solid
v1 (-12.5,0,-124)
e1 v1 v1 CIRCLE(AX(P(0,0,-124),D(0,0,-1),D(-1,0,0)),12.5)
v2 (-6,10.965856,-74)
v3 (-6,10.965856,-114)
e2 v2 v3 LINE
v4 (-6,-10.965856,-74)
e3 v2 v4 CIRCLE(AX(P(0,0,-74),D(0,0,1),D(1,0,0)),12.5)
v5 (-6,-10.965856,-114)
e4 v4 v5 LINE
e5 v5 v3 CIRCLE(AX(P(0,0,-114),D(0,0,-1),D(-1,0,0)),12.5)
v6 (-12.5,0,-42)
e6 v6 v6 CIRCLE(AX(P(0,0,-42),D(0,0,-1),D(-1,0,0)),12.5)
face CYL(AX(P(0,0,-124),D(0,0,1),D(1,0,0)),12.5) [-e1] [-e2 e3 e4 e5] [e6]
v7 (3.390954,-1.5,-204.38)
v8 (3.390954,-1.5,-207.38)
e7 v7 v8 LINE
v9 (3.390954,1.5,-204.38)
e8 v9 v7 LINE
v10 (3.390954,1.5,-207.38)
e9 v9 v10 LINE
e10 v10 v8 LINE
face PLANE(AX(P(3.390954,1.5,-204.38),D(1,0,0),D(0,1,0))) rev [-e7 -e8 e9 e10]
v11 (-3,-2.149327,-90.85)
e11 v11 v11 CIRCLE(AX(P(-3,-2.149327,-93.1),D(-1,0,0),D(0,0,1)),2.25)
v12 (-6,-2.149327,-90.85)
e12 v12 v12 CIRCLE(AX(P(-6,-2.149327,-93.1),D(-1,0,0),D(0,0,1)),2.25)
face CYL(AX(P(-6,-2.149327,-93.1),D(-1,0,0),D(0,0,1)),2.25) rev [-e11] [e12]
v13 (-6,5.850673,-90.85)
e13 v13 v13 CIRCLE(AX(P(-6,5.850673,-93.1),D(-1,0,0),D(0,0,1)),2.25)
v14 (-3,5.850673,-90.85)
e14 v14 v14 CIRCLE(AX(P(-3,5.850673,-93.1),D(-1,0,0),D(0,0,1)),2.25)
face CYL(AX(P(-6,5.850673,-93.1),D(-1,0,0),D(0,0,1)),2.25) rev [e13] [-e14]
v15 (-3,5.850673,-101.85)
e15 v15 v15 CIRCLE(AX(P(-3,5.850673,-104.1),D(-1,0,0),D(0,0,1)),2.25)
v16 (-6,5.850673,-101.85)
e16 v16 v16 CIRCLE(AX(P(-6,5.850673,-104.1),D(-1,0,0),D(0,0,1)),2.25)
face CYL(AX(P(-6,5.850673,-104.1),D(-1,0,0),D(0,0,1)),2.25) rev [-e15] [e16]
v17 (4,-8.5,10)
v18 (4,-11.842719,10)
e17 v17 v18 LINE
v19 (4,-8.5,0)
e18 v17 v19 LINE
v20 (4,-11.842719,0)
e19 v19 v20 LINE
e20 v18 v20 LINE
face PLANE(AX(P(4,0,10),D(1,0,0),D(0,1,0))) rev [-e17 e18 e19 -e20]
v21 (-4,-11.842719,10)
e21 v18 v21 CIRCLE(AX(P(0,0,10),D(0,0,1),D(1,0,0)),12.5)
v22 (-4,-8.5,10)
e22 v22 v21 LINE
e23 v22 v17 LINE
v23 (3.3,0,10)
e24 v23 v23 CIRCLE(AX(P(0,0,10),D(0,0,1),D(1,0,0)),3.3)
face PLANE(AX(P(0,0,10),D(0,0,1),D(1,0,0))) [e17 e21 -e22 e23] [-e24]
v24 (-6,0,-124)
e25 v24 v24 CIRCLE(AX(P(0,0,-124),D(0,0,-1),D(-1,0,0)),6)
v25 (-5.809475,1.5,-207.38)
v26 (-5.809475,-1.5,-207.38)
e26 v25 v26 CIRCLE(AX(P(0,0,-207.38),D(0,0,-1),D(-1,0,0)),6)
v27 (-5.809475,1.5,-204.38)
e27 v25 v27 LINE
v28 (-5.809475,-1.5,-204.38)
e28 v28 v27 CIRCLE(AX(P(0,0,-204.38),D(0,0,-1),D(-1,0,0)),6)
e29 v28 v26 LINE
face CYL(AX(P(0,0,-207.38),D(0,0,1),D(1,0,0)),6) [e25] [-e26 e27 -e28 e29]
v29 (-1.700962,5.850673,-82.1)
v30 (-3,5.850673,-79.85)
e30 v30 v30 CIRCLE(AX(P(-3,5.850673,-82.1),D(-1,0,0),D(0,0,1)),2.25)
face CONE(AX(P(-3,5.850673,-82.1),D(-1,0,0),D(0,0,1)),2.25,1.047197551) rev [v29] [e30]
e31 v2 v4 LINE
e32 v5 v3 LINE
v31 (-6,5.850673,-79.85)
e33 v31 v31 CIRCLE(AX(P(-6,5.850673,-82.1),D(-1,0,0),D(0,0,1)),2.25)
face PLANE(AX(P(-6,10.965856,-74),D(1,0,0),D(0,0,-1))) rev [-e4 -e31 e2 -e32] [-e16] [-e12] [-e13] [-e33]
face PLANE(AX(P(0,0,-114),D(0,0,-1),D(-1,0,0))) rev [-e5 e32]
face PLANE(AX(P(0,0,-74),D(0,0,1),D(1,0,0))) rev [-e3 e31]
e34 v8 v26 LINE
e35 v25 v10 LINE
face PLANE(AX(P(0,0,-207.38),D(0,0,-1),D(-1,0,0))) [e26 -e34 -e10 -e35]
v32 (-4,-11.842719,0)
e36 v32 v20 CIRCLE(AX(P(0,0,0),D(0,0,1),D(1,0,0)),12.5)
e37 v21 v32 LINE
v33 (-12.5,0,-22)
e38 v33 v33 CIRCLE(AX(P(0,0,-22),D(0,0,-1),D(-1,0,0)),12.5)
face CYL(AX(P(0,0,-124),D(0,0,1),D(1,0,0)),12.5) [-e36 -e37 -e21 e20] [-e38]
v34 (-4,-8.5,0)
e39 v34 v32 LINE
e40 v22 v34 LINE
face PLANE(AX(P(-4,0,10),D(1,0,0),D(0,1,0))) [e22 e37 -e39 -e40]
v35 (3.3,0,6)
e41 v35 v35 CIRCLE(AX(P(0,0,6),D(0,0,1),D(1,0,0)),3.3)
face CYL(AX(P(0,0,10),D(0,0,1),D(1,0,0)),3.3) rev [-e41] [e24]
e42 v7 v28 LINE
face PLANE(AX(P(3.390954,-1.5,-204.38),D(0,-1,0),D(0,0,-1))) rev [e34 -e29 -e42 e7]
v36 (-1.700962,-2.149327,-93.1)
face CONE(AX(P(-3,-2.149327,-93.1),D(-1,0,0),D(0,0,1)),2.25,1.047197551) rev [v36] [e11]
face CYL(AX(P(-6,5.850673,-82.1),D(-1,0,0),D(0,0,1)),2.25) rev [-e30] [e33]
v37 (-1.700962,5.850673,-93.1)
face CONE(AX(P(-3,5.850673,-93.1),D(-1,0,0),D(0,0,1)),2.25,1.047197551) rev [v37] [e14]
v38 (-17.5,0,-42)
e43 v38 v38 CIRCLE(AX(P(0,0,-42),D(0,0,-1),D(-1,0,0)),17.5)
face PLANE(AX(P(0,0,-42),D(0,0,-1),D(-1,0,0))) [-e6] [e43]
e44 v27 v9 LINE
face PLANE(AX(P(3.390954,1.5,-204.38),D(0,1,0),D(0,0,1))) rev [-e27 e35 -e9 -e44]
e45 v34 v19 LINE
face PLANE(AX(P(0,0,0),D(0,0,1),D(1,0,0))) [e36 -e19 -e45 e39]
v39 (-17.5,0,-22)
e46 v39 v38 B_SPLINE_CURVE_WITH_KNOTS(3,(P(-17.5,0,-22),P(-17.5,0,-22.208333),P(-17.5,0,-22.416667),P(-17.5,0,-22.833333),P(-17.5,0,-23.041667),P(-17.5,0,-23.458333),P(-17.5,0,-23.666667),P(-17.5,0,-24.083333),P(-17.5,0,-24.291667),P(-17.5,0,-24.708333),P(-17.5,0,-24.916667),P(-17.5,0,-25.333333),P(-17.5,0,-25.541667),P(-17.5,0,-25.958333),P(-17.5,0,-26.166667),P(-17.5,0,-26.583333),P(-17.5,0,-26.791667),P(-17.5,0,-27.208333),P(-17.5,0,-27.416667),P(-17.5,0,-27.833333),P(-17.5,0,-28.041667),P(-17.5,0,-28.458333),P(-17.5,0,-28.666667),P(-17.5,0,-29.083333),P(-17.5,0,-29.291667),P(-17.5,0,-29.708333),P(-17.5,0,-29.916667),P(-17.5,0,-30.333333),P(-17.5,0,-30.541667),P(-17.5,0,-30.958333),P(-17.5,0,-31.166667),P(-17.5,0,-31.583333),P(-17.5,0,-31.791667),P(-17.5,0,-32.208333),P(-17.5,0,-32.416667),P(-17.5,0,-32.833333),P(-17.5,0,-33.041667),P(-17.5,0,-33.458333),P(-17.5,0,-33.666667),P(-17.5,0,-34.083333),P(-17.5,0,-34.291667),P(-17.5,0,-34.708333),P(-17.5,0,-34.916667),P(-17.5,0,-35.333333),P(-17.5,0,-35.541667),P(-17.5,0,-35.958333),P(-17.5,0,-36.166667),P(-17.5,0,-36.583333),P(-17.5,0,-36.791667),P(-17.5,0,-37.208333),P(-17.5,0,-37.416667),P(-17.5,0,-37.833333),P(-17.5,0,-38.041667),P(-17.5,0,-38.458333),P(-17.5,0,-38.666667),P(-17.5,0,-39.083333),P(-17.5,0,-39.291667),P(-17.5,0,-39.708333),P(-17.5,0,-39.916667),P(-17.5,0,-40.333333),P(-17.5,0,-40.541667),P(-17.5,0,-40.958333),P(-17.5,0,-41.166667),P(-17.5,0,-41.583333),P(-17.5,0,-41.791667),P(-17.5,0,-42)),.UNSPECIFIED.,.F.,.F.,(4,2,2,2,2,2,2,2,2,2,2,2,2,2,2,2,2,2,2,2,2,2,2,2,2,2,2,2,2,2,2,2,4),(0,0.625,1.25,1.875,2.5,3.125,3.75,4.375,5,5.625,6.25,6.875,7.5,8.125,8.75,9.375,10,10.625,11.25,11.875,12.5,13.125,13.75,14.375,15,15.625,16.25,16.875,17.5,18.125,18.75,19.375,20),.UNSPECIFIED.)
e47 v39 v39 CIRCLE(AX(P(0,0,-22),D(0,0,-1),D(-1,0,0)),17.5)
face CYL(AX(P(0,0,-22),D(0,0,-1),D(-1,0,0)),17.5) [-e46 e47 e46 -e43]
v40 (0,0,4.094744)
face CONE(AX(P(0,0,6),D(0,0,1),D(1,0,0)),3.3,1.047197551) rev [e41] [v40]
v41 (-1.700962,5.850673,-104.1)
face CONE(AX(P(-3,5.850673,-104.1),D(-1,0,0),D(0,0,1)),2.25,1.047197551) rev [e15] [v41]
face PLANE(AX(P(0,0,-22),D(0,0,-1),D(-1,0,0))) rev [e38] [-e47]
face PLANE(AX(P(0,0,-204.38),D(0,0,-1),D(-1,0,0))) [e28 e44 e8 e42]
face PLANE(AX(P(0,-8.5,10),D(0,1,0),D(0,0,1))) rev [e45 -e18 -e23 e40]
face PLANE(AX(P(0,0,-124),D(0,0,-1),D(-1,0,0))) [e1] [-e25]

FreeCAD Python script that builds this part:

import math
import FreeCAD as App
import Part
import Sketcher
Q = App.Units.Quantity


def add_polygon(sketch, points):
    """Adds a closed chain of lines whose ends are joined by coincident constraints."""
    first, n = sketch.GeometryCount, len(points)
    for a, b in zip(points, points[1:] + points[:1]):
        sketch.addGeometry(Part.LineSegment(App.Vector(*a, 0), App.Vector(*b, 0)), False)
    for i in range(n):
        sketch.addConstraint(Sketcher.Constraint("Coincident", first + i, 2, first + (i + 1) % n, 1))

doc = App.newDocument("Part")
body = doc.addObject("PartDesign::Body", "Body")

# Sketch on XY plane
sketch1 = body.newObject("Sketcher::SketchObject", "Sketch")
sketch1.AttachmentSupport = (doc.getObject("XY_Plane"), [""])
sketch1.MapMode = "FlatFace"
sketch1.addGeometry(Part.Circle(App.Vector(0, 0, 0), App.Vector(0, 0, 1), 30), False)
sketch1.addConstraint([
    Sketcher.Constraint("Coincident", 0, 3, -1, 1),
    Sketcher.Constraint("Diameter", 0, 60.0),
])
pad1 = body.newObject("PartDesign::Pad", "Pad")
pad1.Profile = sketch1
pad1.Length = 15

# Sketch on XY plane
sketch2 = body.newObject("Sketcher::SketchObject", "Sketch001")
sketch2.AttachmentSupport = (doc.getObject("XY_Plane"), [""])
sketch2.MapMode = "FlatFace"
sketch2.addGeometry(Part.Circle(App.Vector(0, 0, 0), App.Vector(0, 0, 1), 12), False)
sketch2.addConstraint([
    Sketcher.Constraint("Coincident", 0, 3, -1, 1),
    Sketcher.Constraint("Diameter", 0, 25.0),
])
pad2 = body.newObject("PartDesign::Pad", "Pad001")
pad2.Profile = sketch2
pad2.Length = 124
pad2.Reversed = True

# Sketch on XY plane
sketch3 = body.newObject("Sketcher::SketchObject", "Sketch002")
sketch3.AttachmentSupport = (doc.getObject("XY_Plane"), [""])
sketch3.MapMode = "FlatFace"
sketch3.AttachmentOffset = App.Placement(App.Vector(0, 0, 15), App.Rotation())
add_polygon(sketch3, [(-115, 20), (-115, -20), (115, -20), (115, 20)])  # lines 0-3
sketch3.addConstraint([
    Sketcher.Constraint("Vertical", 0),
    Sketcher.Constraint("Horizontal", 1),
    Sketcher.Constraint("Vertical", 2),
    Sketcher.Constraint("Horizontal", 3),
    Sketcher.Constraint("Symmetric", 0, 2, 2, 2, -1, 1),
    Sketcher.Constraint("DistanceX", 1, 1, 1, 2, 230.0),
    Sketcher.Constraint("DistanceY", 0, 2, 0, 1, 40.0),
])
pocket1 = body.newObject("PartDesign::Pocket", "Pocket")
pocket1.Profile = sketch3
pocket1.Length = 5

# Sketch on YZ plane
sketch4 = body.newObject("Sketcher::SketchObject", "Sketch003")
sketch4.AttachmentSupport = (doc.getObject("YZ_Plane"), [""])
sketch4.MapMode = "FlatFace"
sketch4.AttachmentOffset = App.Placement(App.Vector(0, 0, -20.5), App.Rotation())
add_polygon(sketch4, [(0, 15), (0, 0), (6.12, 0), (6.12, 3.58), (2.775, 3.58), (2.75, 3.605), (2.75, 15)])  # lines 0-6
sketch4.addConstraint([
    Sketcher.Constraint("Vertical", 0),
    Sketcher.Constraint("Horizontal", 1),
    Sketcher.Constraint("Vertical", 2),
    Sketcher.Constraint("Horizontal", 3),
    Sketcher.Constraint("Vertical", 5),
    Sketcher.Constraint("Horizontal", 6),
    Sketcher.Constraint("Coincident", 0, 2, -1, 1),
    Sketcher.Constraint("DistanceY", 0, 2, 0, 1, 15.0),
    Sketcher.Constraint("Angle", 4, Q("135 deg")),
    Sketcher.Constraint("DistanceX", 1, 1, 1, 2, 6.12),
    Sketcher.Constraint("DistanceX", 6, 2, 6, 1, 2.75),
    Sketcher.Constraint("DistanceY", 2, 1, 2, 2, 3.58),
    Sketcher.Constraint("DistanceX", 3, 2, 3, 1, 3.345),
])
groove = body.newObject("PartDesign::Groove", "Groove")
groove.Profile = sketch4
groove.ReferenceAxis = (sketch4, ["V_Axis"])
groove.Angle = 360
doc.recompute()

linearpattern = body.newObject("PartDesign::LinearPattern", "LinearPattern")
linearpattern.Originals = [groove]
linearpattern.Direction = (doc.getObject("X_Axis"), [""])
linearpattern.Mode = "offset"
linearpattern.Offset = 41
linearpattern.Occurrences = 2
body.Tip = linearpattern

# Sketch on XY plane
sketch5 = body.newObject("Sketcher::SketchObject", "Sketch004")
sketch5.AttachmentSupport = (doc.getObject("XY_Plane"), [""])
sketch5.MapMode = "FlatFace"
sketch5.AttachmentOffset = App.Placement(App.Vector(0, 0, -124), App.Rotation())
sketch5.addGeometry(Part.Circle(App.Vector(0, 0, 0), App.Vector(0, 0, 1), 6), False)
sketch5.addConstraint([
    Sketcher.Constraint("Coincident", 0, 3, -1, 1),
    Sketcher.Constraint("Diameter", 0, 12.0),
])
pad3 = body.newObject("PartDesign::Pad", "Pad002")
pad3.Profile = sketch5
pad3.Length = 83.38
pad3.Reversed = True

# Sketch on XY plane
sketch6 = body.newObject("Sketcher::SketchObject", "Sketch005")
sketch6.AttachmentSupport = (doc.getObject("XY_Plane"), [""])
sketch6.MapMode = "FlatFace"
sketch6.AttachmentOffset = App.Placement(App.Vector(0, 0, -207.38), App.Rotation())
add_polygon(sketch6, [(3.4, 1.5), (3.4, -1.5), (-7, -1.5), (-7, 1.5)])  # lines 0-3
sketch6.addConstraint([
    Sketcher.Constraint("Vertical", 0),
    Sketcher.Constraint("Horizontal", 1),
    Sketcher.Constraint("Vertical", 2),
    Sketcher.Constraint("Horizontal", 3),
    Sketcher.Constraint("DistanceY", 0, 2, 0, 1, 3.0),
    Sketcher.Constraint("DistanceY", 0, 2, -1, 1, 1.5),
    Sketcher.Constraint("DistanceX", 1, 2, 1, 1, 10.356322),
    Sketcher.Constraint("DistanceX", 1, 2, -1, 1, 6.965369),
])
pocket2 = body.newObject("PartDesign::Pocket", "Pocket001")
pocket2.Profile = sketch6
pocket2.Length = 3
pocket2.Reversed = True

# Sketch on XY plane
sketch7 = body.newObject("Sketcher::SketchObject", "Sketch006")
sketch7.AttachmentSupport = (doc.getObject("XY_Plane"), [""])
sketch7.MapMode = "FlatFace"
sketch7.AttachmentOffset = App.Placement(App.Vector(0, 0, -124), App.Rotation())
add_polygon(sketch7, [(-6, 11), (-6, -11), (-14, -11), (-14, 11)])  # lines 0-3
sketch7.addConstraint([
    Sketcher.Constraint("Vertical", 0),
    Sketcher.Constraint("Horizontal", 1),
    Sketcher.Constraint("Vertical", 2),
    Sketcher.Constraint("Horizontal", 3),
    Sketcher.Constraint("DistanceX", 0, 2, -1, 1, 6.0),
    Sketcher.Constraint("DistanceX", 1, 2, 1, 1, 7.933444),
    Sketcher.Constraint("DistanceY", 0, 2, 0, 1, 21.931712),
    Sketcher.Constraint("DistanceY", 0, 2, -1, 1, 10.965856),
])
pocket3 = body.newObject("PartDesign::Pocket", "Pocket002")
pocket3.Profile = sketch7
pocket3.Length = 50
pocket3.Reversed = True

# Sketch on XY plane
sketch8 = body.newObject("Sketcher::SketchObject", "Sketch007")
sketch8.AttachmentSupport = (doc.getObject("XY_Plane"), [""])
sketch8.MapMode = "FlatFace"
sketch8.AttachmentOffset = App.Placement(App.Vector(0, 0, -114), App.Rotation())
sketch8.addGeometry(Part.Circle(App.Vector(0, 0, 0), App.Vector(0, 0, 1), 12), False)
sketch8.addConstraint([
    Sketcher.Constraint("Coincident", 0, 3, -1, 1),
    Sketcher.Constraint("Diameter", 0, 25.0),
])
pad4 = body.newObject("PartDesign::Pad", "Pad003")
pad4.Profile = sketch8
pad4.Length = 10
pad4.Reversed = True

# Sketch on YZ plane
sketch9 = body.newObject("Sketcher::SketchObject", "Sketch008")
sketch9.AttachmentSupport = (doc.getObject("YZ_Plane"), [""])
sketch9.MapMode = "FlatFace"
sketch9.AttachmentOffset = App.Placement(App.Vector(0, 0, -6), App.Rotation())
sketch9.addGeometry([
    Part.Circle(App.Vector(5.9, -82.1, 0), App.Vector(0, 0, 1), 2.2),
    Part.Circle(App.Vector(-2.1, -93.1, 0), App.Vector(0, 0, 1), 2.2),
    Part.Circle(App.Vector(5.9, -93.1, 0), App.Vector(0, 0, 1), 2.2),
    Part.Circle(App.Vector(5.9, -104.1, 0), App.Vector(0, 0, 1), 2.2),
], False)
sketch9.addConstraint([
    Sketcher.Constraint("Equal", 0, 1),
    Sketcher.Constraint("Equal", 1, 2),
    Sketcher.Constraint("Equal", 2, 3),
    Sketcher.Constraint("Horizontal", 1, 3, 2, 3),
    Sketcher.Constraint("Vertical", 0, 3, 2, 3),
    Sketcher.Constraint("Vertical", 2, 3, 3, 3),
    Sketcher.Constraint("Diameter", 0, 4.5),
    Sketcher.Constraint("DistanceX", 1, 3, 0, 3, 8.0),
    Sketcher.Constraint("DistanceY", 1, 3, 0, 3, 11.0),
    Sketcher.Constraint("DistanceY", 3, 3, 2, 3, 11.0),
    Sketcher.Constraint("DistanceY", 0, 3, -1, 1, 82.1),
    Sketcher.Constraint("DistanceX", -1, 1, 0, 3, 5.850673),
])
doc.recompute()
hole = body.newObject("PartDesign::Hole", "Hole")
hole.Profile = sketch9
hole.ThreadType = "None"
hole.Diameter = 4.5
hole.DepthType = "Dimension"
hole.Depth = 3
hole.DrillPoint = "Angled"
hole.DrillPointAngle = 120
hole.Reversed = True

# Sketch on XY plane
sketch10 = body.newObject("Sketcher::SketchObject", "Sketch009")
sketch10.AttachmentSupport = (doc.getObject("XY_Plane"), [""])
sketch10.MapMode = "FlatFace"
sketch10.AttachmentOffset = App.Placement(App.Vector(0, 0, -74), App.Rotation())
sketch10.addGeometry(Part.Circle(App.Vector(0, 0, 0), App.Vector(0, 0, 1), 18), False)
sketch10.addConstraint([
    Sketcher.Constraint("Coincident", 0, 3, -1, 1),
    Sketcher.Constraint("Diameter", 0, 35.0),
])
pad5 = body.newObject("PartDesign::Pad", "Pad004")
pad5.Profile = sketch10
pad5.Length = 52

# Sketch on XY plane
sketch11 = body.newObject("Sketcher::SketchObject", "Sketch010")
sketch11.AttachmentSupport = (doc.getObject("XY_Plane"), [""])
sketch11.MapMode = "FlatFace"
sketch11.AttachmentOffset = App.Placement(App.Vector(0, 0, -42), App.Rotation())
sketch11.addGeometry([
    Part.Circle(App.Vector(0, 0, 0), App.Vector(0, 0, 1), 18),
    Part.ArcOfCircle(Part.Circle(App.Vector(0, 0, 0), App.Vector(0, 0, 1), 12), math.radians(-119), math.radians(119)),
    Part.ArcOfCircle(Part.Circle(App.Vector(0, 0, 0), App.Vector(0, 0, 1), 12), math.radians(119), math.radians(180)),
    Part.ArcOfCircle(Part.Circle(App.Vector(0, 0, 0), App.Vector(0, 0, 1), 12), math.radians(180), math.radians(241)),
], False)
sketch11.addConstraint([
    Sketcher.Constraint("Tangent", 1, 2, 2, 1),
    Sketcher.Constraint("Tangent", 2, 2, 3, 1),
    Sketcher.Constraint("Tangent", 3, 2, 1, 1),
    Sketcher.Constraint("Coincident", 0, 3, -1, 1),
    Sketcher.Constraint("Coincident", 1, 3, -1, 1),
    Sketcher.Constraint("PointOnObject", 2, 2, -1),
    Sketcher.Constraint("Vertical", 1, 2, 3, 2),
    Sketcher.Constraint("Diameter", 0, 35.0),
    Sketcher.Constraint("Radius", 1, 12.5),
    Sketcher.Constraint("DistanceX", 1, 2, -1, 1, 6.0),
])
pocket4 = body.newObject("PartDesign::Pocket", "Pocket003")
pocket4.Profile = sketch11
pocket4.Length = 32

# Sketch on XY plane
sketch12 = body.newObject("Sketcher::SketchObject", "Sketch011")
sketch12.AttachmentSupport = (doc.getObject("XY_Plane"), [""])
sketch12.MapMode = "FlatFace"
sketch12.addGeometry(Part.Circle(App.Vector(0, 0, 0), App.Vector(0, 0, 1), 30), False)
sketch12.addConstraint([
    Sketcher.Constraint("Coincident", 0, 3, -1, 1),
    Sketcher.Constraint("Diameter", 0, 60.0),
])
pocket5 = body.newObject("PartDesign::Pocket", "Pocket004")
pocket5.Profile = sketch12
pocket5.Length = 15
pocket5.Reversed = True

# Sketch on XY plane
sketch13 = body.newObject("Sketcher::SketchObject", "Sketch012")
sketch13.AttachmentSupport = (doc.getObject("XY_Plane"), [""])
sketch13.MapMode = "FlatFace"
sketch13.AttachmentOffset = App.Placement(App.Vector(0, 0, 10), App.Rotation())
sketch13.addGeometry([
    Part.LineSegment(App.Vector(-4, -11.8, 0), App.Vector(-4, -8.5, 0)),  # 0
    Part.LineSegment(App.Vector(-4, -8.5, 0), App.Vector(4, -8.5, 0)),  # 1
    Part.LineSegment(App.Vector(4, -8.5, 0), App.Vector(4, -11.8, 0)),  # 2
    Part.ArcOfCircle(Part.Circle(App.Vector(0, 0, 0), App.Vector(0, 0, 1), 12.5), math.radians(-71), math.radians(0)),  # 3
    Part.ArcOfCircle(Part.Circle(App.Vector(0, 0, 0), App.Vector(0, 0, 1), 12.5), math.radians(0), math.radians(251)),  # 4
], False)
sketch13.addConstraint([
    Sketcher.Constraint("Coincident", 0, 2, 1, 1),
    Sketcher.Constraint("Coincident", 1, 2, 2, 1),
    Sketcher.Constraint("Coincident", 2, 2, 3, 1),
    Sketcher.Constraint("Tangent", 3, 2, 4, 1),
    Sketcher.Constraint("Coincident", 4, 2, 0, 1),
    Sketcher.Constraint("Vertical", 0),
    Sketcher.Constraint("Horizontal", 1),
    Sketcher.Constraint("Vertical", 2),
    Sketcher.Constraint("Coincident", 3, 3, -1, 1),
    Sketcher.Constraint("Equal", 3, 4),
    Sketcher.Constraint("PointOnObject", 3, 2, -1),
    Sketcher.Constraint("Horizontal", 2, 2, 4, 2),
    Sketcher.Constraint("Radius", 3, 12.5),
    Sketcher.Constraint("DistanceX", 1, 1, 1, 2, 8.0),
    Sketcher.Constraint("DistanceY", 0, 2, -1, 1, 8.5),
])
pad6 = body.newObject("PartDesign::Pad", "Pad005")
pad6.Profile = sketch13
pad6.Length = 10
pad6.Reversed = True

# Sketch on XY plane
sketch14 = body.newObject("Sketcher::SketchObject", "Sketch013")
sketch14.AttachmentSupport = (doc.getObject("XY_Plane"), [""])
sketch14.MapMode = "FlatFace"
sketch14.AttachmentOffset = App.Placement(App.Vector(0, 0, 10), App.Rotation())
sketch14.addGeometry(Part.Circle(App.Vector(0, 0, 0), App.Vector(0, 0, 1), 3.3), False)
sketch14.addConstraint([
    Sketcher.Constraint("Coincident", 0, 3, -1, 1),
    Sketcher.Constraint("Diameter", 0, 6.6),
])
doc.recompute()
hole2 = body.newObject("PartDesign::Hole", "Hole001")
hole2.Profile = sketch14
hole2.ThreadType = "None"
hole2.Diameter = 6.6
hole2.DepthType = "Dimension"
hole2.Depth = 4
hole2.DrillPoint = "Angled"
hole2.DrillPointAngle = 120

doc.recompute()
